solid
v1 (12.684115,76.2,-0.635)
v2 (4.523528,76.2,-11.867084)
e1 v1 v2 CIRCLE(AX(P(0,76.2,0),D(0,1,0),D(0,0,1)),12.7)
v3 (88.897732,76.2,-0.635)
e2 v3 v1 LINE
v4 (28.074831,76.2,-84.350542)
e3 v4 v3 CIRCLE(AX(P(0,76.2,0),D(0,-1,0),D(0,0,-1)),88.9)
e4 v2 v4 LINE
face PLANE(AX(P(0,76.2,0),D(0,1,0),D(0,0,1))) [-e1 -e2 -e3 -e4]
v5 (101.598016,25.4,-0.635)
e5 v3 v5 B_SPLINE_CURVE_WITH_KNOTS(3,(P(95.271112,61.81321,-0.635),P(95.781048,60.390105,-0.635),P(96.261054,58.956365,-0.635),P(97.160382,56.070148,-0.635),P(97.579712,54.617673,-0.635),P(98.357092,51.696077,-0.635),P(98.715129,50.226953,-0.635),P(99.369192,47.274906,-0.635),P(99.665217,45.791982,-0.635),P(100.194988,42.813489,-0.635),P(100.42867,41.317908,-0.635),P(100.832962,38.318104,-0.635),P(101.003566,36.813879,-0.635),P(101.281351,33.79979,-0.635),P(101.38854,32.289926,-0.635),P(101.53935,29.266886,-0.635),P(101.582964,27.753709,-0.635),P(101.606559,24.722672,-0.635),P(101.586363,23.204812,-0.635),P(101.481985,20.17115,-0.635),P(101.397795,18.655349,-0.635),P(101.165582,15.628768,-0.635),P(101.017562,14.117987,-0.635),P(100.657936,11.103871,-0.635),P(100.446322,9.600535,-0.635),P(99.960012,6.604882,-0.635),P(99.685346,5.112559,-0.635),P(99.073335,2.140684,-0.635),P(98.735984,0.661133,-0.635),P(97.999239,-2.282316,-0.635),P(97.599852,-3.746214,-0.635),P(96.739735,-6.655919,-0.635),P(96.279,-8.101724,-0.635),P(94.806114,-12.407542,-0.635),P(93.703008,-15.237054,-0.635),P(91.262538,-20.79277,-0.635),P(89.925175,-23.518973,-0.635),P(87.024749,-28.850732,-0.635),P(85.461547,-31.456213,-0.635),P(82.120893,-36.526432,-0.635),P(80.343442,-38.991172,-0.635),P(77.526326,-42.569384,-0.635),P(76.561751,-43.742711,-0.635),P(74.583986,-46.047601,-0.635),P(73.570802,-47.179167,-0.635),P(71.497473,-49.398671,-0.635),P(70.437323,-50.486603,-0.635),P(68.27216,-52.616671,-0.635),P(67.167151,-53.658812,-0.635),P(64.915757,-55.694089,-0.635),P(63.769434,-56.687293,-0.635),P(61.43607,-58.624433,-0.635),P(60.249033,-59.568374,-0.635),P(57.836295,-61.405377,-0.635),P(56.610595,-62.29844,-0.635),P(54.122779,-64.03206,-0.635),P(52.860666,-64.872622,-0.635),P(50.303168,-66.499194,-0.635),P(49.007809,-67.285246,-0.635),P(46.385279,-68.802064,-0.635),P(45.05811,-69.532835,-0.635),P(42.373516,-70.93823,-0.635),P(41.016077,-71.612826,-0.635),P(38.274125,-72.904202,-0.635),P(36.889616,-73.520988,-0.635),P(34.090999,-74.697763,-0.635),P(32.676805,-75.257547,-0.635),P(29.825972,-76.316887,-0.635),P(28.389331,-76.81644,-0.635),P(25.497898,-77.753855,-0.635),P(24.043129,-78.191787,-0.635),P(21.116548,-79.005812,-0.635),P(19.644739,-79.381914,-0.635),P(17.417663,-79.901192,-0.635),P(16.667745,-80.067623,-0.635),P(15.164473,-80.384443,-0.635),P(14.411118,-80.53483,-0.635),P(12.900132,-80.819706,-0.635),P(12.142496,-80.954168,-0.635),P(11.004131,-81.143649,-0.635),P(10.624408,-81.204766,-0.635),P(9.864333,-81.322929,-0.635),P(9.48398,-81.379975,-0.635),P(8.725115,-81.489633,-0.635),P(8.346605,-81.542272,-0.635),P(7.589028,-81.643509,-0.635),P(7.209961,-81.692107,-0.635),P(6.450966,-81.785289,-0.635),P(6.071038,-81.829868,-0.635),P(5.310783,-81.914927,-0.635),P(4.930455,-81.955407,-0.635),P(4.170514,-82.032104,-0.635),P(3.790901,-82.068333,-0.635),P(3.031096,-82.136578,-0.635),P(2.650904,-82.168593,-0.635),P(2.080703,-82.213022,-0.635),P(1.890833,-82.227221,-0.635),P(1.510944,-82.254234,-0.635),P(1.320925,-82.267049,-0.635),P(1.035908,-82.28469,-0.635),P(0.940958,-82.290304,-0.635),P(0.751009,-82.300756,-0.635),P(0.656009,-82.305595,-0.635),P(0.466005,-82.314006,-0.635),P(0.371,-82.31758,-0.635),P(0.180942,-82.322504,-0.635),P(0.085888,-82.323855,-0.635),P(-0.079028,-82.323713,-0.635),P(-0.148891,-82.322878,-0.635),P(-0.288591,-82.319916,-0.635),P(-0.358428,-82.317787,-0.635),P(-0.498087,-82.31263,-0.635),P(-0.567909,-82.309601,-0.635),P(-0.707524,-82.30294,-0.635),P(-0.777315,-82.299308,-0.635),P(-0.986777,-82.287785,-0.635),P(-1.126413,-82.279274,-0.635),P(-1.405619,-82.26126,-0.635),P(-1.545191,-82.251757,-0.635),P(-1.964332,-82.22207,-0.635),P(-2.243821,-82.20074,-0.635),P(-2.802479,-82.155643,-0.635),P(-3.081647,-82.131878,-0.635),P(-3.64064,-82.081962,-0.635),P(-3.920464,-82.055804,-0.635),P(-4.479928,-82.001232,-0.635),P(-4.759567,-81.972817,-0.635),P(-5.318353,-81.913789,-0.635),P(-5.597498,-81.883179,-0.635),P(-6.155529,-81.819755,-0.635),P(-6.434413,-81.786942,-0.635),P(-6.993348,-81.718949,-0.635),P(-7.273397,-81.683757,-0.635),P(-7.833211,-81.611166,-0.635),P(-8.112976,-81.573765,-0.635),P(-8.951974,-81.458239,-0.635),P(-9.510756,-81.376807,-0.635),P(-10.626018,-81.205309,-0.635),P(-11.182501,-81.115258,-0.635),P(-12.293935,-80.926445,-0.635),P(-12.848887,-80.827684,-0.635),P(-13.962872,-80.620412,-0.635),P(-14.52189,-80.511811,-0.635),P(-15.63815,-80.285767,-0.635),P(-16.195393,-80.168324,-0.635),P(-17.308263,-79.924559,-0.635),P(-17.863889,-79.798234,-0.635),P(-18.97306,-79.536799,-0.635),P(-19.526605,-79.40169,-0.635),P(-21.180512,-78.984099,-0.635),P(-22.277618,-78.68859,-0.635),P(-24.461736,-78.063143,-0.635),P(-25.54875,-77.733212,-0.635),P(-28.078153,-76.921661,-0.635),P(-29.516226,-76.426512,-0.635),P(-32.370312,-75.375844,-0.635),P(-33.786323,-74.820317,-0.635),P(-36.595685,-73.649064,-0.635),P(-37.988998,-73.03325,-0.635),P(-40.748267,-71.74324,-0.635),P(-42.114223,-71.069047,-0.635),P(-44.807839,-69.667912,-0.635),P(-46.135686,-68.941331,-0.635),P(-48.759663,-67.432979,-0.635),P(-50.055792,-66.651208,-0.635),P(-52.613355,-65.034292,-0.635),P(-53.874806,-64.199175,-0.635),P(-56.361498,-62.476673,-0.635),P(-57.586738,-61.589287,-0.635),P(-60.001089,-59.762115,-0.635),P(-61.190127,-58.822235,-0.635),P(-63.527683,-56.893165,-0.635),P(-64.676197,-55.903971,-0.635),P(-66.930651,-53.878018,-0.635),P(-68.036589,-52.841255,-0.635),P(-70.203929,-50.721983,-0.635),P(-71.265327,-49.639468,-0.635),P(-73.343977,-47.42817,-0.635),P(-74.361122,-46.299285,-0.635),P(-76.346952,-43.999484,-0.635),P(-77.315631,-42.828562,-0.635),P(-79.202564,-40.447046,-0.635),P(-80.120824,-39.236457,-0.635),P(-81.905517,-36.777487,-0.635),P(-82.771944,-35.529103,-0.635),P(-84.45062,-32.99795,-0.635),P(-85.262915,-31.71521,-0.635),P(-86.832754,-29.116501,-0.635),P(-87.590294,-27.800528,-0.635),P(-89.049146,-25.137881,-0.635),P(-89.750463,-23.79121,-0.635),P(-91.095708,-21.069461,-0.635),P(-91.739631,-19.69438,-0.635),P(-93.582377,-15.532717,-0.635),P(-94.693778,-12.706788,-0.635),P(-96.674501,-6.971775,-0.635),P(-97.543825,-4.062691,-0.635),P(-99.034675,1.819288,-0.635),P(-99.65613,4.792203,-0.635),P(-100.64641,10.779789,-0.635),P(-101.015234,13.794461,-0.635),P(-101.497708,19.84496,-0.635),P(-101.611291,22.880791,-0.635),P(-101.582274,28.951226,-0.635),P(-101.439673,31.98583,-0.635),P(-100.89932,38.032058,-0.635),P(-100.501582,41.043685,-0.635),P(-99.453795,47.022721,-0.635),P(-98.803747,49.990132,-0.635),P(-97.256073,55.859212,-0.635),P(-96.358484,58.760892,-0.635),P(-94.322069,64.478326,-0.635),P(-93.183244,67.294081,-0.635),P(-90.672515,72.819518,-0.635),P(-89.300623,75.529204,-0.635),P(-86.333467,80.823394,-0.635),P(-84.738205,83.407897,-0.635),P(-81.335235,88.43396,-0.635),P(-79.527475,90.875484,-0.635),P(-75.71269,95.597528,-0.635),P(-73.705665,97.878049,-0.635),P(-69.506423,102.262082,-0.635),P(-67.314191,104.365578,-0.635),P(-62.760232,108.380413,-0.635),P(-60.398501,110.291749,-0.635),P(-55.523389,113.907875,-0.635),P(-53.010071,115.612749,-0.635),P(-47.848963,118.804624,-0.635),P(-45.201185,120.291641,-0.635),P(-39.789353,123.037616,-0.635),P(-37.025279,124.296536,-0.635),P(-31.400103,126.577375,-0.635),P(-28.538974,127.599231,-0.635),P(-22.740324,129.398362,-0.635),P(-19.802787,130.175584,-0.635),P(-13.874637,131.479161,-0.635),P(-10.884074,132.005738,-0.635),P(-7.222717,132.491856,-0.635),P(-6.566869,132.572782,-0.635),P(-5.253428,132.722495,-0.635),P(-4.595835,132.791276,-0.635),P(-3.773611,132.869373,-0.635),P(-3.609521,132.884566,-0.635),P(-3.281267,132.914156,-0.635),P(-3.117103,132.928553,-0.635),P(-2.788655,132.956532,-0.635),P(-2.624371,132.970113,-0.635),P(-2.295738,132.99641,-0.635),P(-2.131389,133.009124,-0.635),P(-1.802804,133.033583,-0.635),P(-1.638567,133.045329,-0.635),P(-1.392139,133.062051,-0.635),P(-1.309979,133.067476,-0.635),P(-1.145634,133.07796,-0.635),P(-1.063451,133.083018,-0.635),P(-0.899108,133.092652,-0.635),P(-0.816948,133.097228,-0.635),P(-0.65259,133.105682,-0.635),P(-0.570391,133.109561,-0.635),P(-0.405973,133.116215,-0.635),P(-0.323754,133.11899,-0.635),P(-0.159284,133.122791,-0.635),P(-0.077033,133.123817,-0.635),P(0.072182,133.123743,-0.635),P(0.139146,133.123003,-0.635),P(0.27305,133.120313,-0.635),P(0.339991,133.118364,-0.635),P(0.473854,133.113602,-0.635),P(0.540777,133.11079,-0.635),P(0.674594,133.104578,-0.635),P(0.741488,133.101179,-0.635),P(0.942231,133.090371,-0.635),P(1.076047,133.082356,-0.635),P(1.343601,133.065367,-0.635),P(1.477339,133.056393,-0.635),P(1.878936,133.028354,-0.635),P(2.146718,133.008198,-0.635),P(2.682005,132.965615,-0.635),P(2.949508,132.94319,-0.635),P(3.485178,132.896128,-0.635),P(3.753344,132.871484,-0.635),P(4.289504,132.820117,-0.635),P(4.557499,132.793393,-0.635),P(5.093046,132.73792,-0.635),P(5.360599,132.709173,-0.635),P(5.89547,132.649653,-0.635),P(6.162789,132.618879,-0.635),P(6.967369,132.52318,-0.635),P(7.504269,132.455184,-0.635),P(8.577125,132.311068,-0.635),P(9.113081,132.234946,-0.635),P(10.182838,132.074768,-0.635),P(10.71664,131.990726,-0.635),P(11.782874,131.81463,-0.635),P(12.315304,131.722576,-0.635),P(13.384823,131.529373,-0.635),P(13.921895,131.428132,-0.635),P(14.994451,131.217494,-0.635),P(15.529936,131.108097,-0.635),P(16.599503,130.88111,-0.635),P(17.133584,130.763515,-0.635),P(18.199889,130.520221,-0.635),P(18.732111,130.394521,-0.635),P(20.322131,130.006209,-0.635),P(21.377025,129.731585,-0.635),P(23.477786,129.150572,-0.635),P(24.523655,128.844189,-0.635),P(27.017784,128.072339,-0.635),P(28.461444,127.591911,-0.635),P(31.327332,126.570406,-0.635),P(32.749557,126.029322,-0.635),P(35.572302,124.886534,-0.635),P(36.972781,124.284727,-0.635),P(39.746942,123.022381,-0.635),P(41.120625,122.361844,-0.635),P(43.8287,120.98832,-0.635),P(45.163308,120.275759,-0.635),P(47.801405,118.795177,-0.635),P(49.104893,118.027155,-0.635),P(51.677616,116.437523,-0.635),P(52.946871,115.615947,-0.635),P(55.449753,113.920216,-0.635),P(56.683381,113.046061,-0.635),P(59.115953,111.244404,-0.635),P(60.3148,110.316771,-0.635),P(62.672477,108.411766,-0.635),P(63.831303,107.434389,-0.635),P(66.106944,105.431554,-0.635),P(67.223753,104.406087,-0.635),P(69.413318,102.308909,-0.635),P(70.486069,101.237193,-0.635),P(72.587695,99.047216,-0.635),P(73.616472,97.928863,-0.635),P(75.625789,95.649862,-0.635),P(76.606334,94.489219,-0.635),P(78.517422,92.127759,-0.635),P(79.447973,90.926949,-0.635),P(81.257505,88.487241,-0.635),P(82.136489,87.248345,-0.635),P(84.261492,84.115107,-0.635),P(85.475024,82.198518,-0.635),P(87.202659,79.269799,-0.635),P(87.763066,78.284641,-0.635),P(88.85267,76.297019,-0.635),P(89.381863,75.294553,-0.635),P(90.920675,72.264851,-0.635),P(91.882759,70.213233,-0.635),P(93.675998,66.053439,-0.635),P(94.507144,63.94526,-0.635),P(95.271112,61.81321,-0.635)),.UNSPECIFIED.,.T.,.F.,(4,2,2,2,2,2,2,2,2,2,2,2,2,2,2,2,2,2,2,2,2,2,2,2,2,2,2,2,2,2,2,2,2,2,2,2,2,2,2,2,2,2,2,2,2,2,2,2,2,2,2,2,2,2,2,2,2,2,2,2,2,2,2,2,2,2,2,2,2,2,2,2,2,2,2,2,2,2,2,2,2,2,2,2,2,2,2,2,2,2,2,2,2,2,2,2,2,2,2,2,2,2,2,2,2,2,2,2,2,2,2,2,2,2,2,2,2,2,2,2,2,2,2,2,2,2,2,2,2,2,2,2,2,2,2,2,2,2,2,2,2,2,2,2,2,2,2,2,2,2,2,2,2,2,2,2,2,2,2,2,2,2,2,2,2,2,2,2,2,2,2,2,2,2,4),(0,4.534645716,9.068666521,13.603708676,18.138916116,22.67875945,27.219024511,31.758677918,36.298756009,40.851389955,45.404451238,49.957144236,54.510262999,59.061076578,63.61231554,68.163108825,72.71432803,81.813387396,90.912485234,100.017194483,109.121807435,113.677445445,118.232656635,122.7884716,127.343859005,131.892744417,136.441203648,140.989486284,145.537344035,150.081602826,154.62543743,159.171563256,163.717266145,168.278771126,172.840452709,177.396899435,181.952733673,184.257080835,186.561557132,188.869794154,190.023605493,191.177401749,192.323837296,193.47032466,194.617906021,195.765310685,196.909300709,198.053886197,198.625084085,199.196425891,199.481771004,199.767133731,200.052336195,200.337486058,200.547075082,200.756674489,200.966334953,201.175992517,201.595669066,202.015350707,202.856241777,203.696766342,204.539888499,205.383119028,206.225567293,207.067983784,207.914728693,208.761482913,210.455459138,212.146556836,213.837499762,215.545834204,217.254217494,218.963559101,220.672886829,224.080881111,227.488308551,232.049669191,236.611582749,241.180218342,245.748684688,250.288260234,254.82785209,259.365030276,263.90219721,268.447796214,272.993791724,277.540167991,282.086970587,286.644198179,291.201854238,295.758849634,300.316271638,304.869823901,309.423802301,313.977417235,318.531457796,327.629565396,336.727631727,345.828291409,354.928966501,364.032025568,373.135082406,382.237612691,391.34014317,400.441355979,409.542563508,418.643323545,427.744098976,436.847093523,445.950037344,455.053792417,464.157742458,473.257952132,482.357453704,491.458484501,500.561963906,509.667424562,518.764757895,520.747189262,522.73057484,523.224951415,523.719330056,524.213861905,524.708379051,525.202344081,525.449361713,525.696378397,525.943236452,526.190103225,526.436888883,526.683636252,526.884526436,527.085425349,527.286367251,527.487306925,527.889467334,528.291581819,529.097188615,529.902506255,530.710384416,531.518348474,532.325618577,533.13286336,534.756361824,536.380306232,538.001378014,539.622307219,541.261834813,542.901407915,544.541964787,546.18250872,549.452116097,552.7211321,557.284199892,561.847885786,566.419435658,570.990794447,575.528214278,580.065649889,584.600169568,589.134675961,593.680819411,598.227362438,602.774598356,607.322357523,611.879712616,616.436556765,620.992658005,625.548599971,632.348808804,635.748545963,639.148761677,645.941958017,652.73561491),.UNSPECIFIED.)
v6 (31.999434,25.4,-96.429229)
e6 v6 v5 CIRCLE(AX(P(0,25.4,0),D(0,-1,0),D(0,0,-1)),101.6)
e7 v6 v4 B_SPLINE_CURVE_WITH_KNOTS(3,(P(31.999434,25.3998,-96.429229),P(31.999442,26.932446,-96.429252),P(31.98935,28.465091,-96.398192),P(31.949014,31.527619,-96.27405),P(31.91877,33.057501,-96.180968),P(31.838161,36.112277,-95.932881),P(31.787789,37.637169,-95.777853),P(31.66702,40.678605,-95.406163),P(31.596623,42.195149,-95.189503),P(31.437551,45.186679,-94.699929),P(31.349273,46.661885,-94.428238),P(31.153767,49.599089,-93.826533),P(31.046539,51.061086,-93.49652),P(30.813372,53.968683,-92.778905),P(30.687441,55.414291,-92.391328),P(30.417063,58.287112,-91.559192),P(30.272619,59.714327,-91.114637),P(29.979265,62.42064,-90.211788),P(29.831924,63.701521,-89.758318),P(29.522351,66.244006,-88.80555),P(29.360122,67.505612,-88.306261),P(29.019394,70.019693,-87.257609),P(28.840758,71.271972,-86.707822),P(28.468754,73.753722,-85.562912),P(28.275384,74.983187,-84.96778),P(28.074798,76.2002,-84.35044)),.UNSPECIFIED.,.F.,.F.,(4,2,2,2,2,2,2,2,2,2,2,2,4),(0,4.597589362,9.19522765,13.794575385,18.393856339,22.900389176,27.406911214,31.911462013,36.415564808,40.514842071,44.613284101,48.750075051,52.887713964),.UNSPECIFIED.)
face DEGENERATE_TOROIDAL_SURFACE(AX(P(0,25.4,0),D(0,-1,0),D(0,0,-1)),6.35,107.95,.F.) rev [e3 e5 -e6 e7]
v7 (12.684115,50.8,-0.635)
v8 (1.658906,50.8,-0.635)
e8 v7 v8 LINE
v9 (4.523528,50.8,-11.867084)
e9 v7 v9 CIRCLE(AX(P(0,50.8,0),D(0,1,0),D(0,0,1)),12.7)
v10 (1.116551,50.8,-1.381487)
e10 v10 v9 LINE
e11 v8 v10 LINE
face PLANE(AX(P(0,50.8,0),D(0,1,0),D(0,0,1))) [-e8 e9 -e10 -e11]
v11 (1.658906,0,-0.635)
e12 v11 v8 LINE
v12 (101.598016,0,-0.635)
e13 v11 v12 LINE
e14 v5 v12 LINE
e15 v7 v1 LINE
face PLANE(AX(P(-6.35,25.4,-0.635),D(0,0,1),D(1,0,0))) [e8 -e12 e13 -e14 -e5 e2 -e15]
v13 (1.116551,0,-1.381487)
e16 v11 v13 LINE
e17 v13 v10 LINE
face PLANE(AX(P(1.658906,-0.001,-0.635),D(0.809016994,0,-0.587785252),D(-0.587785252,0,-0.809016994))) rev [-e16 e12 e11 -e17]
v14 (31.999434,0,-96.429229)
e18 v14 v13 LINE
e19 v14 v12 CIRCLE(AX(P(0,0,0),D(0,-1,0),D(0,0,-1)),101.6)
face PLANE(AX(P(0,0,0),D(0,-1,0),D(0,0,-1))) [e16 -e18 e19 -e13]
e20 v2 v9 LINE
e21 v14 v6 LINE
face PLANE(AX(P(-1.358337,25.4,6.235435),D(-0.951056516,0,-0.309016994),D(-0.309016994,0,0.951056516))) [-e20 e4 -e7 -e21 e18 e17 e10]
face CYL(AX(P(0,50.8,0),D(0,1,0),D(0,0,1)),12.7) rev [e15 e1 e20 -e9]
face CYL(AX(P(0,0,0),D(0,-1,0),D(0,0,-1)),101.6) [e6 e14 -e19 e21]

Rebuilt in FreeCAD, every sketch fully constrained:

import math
import FreeCAD as App
import Part
import Sketcher
Q = App.Units.Quantity


def add_polygon(sketch, points):
    """Adds a closed chain of lines whose ends are joined by coincident constraints."""
    first, n = sketch.GeometryCount, len(points)
    for a, b in zip(points, points[1:] + points[:1]):
        sketch.addGeometry(Part.LineSegment(App.Vector(*a, 0), App.Vector(*b, 0)), False)
    for i in range(n):
        sketch.addConstraint(Sketcher.Constraint("Coincident", first + i, 2, first + (i + 1) % n, 1))

doc = App.newDocument("Part")
params = doc.addObject("Spreadsheet::Sheet", "Params")
for row, (alias, value) in enumerate([
    ("sketch1_width", "4 in"),
    ("sketch1_height", "3 in"),
    ("sketch1_height2", "1 in"),
    ("sketch1_radius", "4.25 in"),
    ("revolution_angle", "72 deg"),
    ("sketch2_width", "4 in"),
    ("sketch2_height", "1 in"),
    ("sketch2_height2", "3 in"),
    ("sketch2_radius", "4.25 in"),
    ("pocket1_length", "0.025 in"),
    ("sketch3_height", "3 in"),
    ("sketch3_height2", "1 in"),
    ("sketch3_radius", "4.25 in"),
    ("pocket2_length", "0.025 in"),
    ("sketch4_diameter", "1 in"),
    ("pocket3_length", "1 in"),
], start=1):
    params.set(f"A{row}", alias)
    params.set(f"B{row}", "=" + value)
    params.setAlias(f"B{row}", alias)

body = doc.addObject("PartDesign::Body", "Body")

# Sketch on XY plane
sketch1 = body.newObject("Sketcher::SketchObject", "Sketch")
sketch1.AttachmentSupport = (doc.getObject("XY_Plane"), [""])
sketch1.MapMode = "FlatFace"
sketch1.addGeometry(Part.LineSegment(App.Vector(0, 76, 0), App.Vector(0, 0, 0)), False)
sketch1.addGeometry(Part.LineSegment(App.Vector(0, 0, 0), App.Vector(102, 0, 0)), False)
sketch1.addGeometry(Part.LineSegment(App.Vector(102, 0, 0), App.Vector(102, 25, 0)), False)
sketch1.addGeometry(Part.ArcOfCircle(Part.Circle(App.Vector(-6, 25, 0), App.Vector(0, 0, 1), 108), math.radians(0), math.radians(28)), False)
sketch1.addGeometry(Part.LineSegment(App.Vector(89, 76, 0), App.Vector(0, 76, 0)), False)
sketch1.addConstraint(Sketcher.Constraint("Coincident", 0, 2, 1, 1))
sketch1.addConstraint(Sketcher.Constraint("Coincident", 1, 2, 2, 1))
sketch1.addConstraint(Sketcher.Constraint("Tangent", 2, 2, 3, 1))
sketch1.addConstraint(Sketcher.Constraint("Coincident", 3, 2, 4, 1))
sketch1.addConstraint(Sketcher.Constraint("Coincident", 4, 2, 0, 1))
sketch1.addConstraint(Sketcher.Constraint("Vertical", 0))
sketch1.addConstraint(Sketcher.Constraint("Horizontal", 1))
sketch1.addConstraint(Sketcher.Constraint("Vertical", 2))
sketch1.addConstraint(Sketcher.Constraint("Horizontal", 4))
sketch1.addConstraint(Sketcher.Constraint("Coincident", 0, 2, -1, 1))
sketch1.addConstraint(Sketcher.Constraint("DistanceX", 1, 1, 1, 2, Q("4 in")))
sketch1.addConstraint(Sketcher.Constraint("DistanceY", 0, 2, 0, 1, Q("3 in")))
sketch1.addConstraint(Sketcher.Constraint("DistanceY", 2, 1, 2, 2, Q("1 in")))
sketch1.addConstraint(Sketcher.Constraint("Radius", 3, Q("4.25 in")))
sketch1.setExpression("Constraints[10]", "Params.sketch1_width")
sketch1.setExpression("Constraints[11]", "Params.sketch1_height")
sketch1.setExpression("Constraints[12]", "Params.sketch1_height2")
sketch1.setExpression("Constraints[13]", "Params.sketch1_radius")
revolution = body.newObject("PartDesign::Revolution", "Revolution")
revolution.Profile = sketch1
revolution.ReferenceAxis = (sketch1, ["V_Axis"])
revolution.setExpression("Angle", "Params.revolution_angle")

# Sketch on an angled plane
sketch2 = body.newObject("Sketcher::SketchObject", "Sketch001")
sketch2.Placement = App.Placement(App.Vector(0, 0, 0), App.Rotation(App.Vector(-0.309016994, 0, 0.951056516), App.Vector(0, 0.999999999, 0), App.Vector(-0.951056516, 0, -0.309016994), "ZXY"))
sketch2.addGeometry(Part.LineSegment(App.Vector(0, 76, 0), App.Vector(-89, 76, 0)), False)
sketch2.addGeometry(Part.ArcOfCircle(Part.Circle(App.Vector(6, 25, 0), App.Vector(0, 0, 1), 108), math.radians(152), math.radians(180)), False)
sketch2.addGeometry(Part.LineSegment(App.Vector(-102, 25, 0), App.Vector(-102, 0, 0)), False)
sketch2.addGeometry(Part.LineSegment(App.Vector(-102, 0, 0), App.Vector(0, 0, 0)), False)
sketch2.addGeometry(Part.LineSegment(App.Vector(0, 0, 0), App.Vector(0, 76, 0)), False)
sketch2.addConstraint(Sketcher.Constraint("Coincident", 0, 2, 1, 1))
sketch2.addConstraint(Sketcher.Constraint("Tangent", 1, 2, 2, 1))
sketch2.addConstraint(Sketcher.Constraint("Coincident", 2, 2, 3, 1))
sketch2.addConstraint(Sketcher.Constraint("Coincident", 3, 2, 4, 1))
sketch2.addConstraint(Sketcher.Constraint("Coincident", 4, 2, 0, 1))
sketch2.addConstraint(Sketcher.Constraint("Horizontal", 0))
sketch2.addConstraint(Sketcher.Constraint("Vertical", 2))
sketch2.addConstraint(Sketcher.Constraint("Horizontal", 3))
sketch2.addConstraint(Sketcher.Constraint("Vertical", 4))
sketch2.addConstraint(Sketcher.Constraint("Coincident", 3, 2, -1, 1))
sketch2.addConstraint(Sketcher.Constraint("DistanceX", 3, 1, 3, 2, Q("4 in")))
sketch2.addConstraint(Sketcher.Constraint("DistanceY", 2, 2, 2, 1, Q("1 in")))
sketch2.addConstraint(Sketcher.Constraint("DistanceY", 4, 1, 4, 2, Q("3 in")))
sketch2.addConstraint(Sketcher.Constraint("Radius", 1, Q("4.25 in")))
sketch2.setExpression("Constraints[10]", "Params.sketch2_width")
sketch2.setExpression("Constraints[11]", "Params.sketch2_height")
sketch2.setExpression("Constraints[12]", "Params.sketch2_height2")
sketch2.setExpression("Constraints[13]", "Params.sketch2_radius")
pocket1 = body.newObject("PartDesign::Pocket", "Pocket")
pocket1.Profile = sketch2
pocket1.setExpression("Length", "Params.pocket1_length")

# Sketch on XY plane
sketch3 = body.newObject("Sketcher::SketchObject", "Sketch002")
sketch3.AttachmentSupport = (doc.getObject("XY_Plane"), [""])
sketch3.MapMode = "FlatFace"
sketch3.addGeometry(Part.LineSegment(App.Vector(1, 76, 0), App.Vector(1, 0, 0)), False)
sketch3.addGeometry(Part.LineSegment(App.Vector(1, 0, 0), App.Vector(102, 0, 0)), False)
sketch3.addGeometry(Part.LineSegment(App.Vector(102, 0, 0), App.Vector(102, 25, 0)), False)
sketch3.addGeometry(Part.ArcOfCircle(Part.Circle(App.Vector(-6, 25, 0), App.Vector(0, 0, 1), 108), math.radians(0), math.radians(28)), False)
sketch3.addGeometry(Part.LineSegment(App.Vector(89, 76, 0), App.Vector(1, 76, 0)), False)
sketch3.addConstraint(Sketcher.Constraint("Coincident", 0, 2, 1, 1))
sketch3.addConstraint(Sketcher.Constraint("Coincident", 1, 2, 2, 1))
sketch3.addConstraint(Sketcher.Constraint("Tangent", 2, 2, 3, 1))
sketch3.addConstraint(Sketcher.Constraint("Coincident", 3, 2, 4, 1))
sketch3.addConstraint(Sketcher.Constraint("Coincident", 4, 2, 0, 1))
sketch3.addConstraint(Sketcher.Constraint("Vertical", 0))
sketch3.addConstraint(Sketcher.Constraint("Horizontal", 1))
sketch3.addConstraint(Sketcher.Constraint("Vertical", 2))
sketch3.addConstraint(Sketcher.Constraint("Horizontal", 4))
sketch3.addConstraint(Sketcher.Constraint("PointOnObject", 0, 2, -1))
sketch3.addConstraint(Sketcher.Constraint("DistanceY", 0, 2, 0, 1, Q("3 in")))
sketch3.addConstraint(Sketcher.Constraint("DistanceY", 2, 1, 2, 2, Q("1 in")))
sketch3.addConstraint(Sketcher.Constraint("Radius", 3, Q("4.25 in")))
sketch3.addConstraint(Sketcher.Constraint("DistanceX", -1, 1, 1, 2, Q("4 in")))
sketch3.addConstraint(Sketcher.Constraint("DistanceX", 1, 1, 1, 2, Q("100.932321 mm")))
sketch3.setExpression("Constraints[10]", "Params.sketch3_height")
sketch3.setExpression("Constraints[11]", "Params.sketch3_height2")
sketch3.setExpression("Constraints[12]", "Params.sketch3_radius")
pocket2 = body.newObject("PartDesign::Pocket", "Pocket001")
pocket2.Profile = sketch3
pocket2.setExpression("Length", "Params.pocket2_length")

# Sketch on XZ plane
sketch4 = body.newObject("Sketcher::SketchObject", "Sketch003")
sketch4.AttachmentSupport = (doc.getObject("XZ_Plane"), [""])
sketch4.MapMode = "FlatFace"
sketch4.AttachmentOffset = App.Placement(App.Vector(0, 0, -3 * 25.4), App.Rotation())
sketch4.addGeometry(Part.Circle(App.Vector(0, 0, 0), App.Vector(0, 0, 1), 13), False)
sketch4.addConstraint(Sketcher.Constraint("Coincident", 0, 3, -1, 1))
sketch4.addConstraint(Sketcher.Constraint("Diameter", 0, Q("1 in")))
sketch4.setExpression("Constraints[1]", "Params.sketch4_diameter")
pocket3 = body.newObject("PartDesign::Pocket", "Pocket002")
pocket3.Profile = sketch4
pocket3.setExpression("Length", "Params.pocket3_length")
pocket3.Reversed = True

# Sketch on XZ plane
sketch5 = body.newObject("Sketcher::SketchObject", "Sketch004")
sketch5.AttachmentSupport = (doc.getObject("XZ_Plane"), [""])
sketch5.MapMode = "FlatFace"
sketch5.AttachmentOffset = App.Placement(App.Vector(0, 0, -2 * 25.4), App.Rotation())
add_polygon(sketch5, [(1.7, -0.6), (1.1, -1.4), (0.9, -0.6)])  # lines 0-2
sketch5.addConstraint(Sketcher.Constraint("Horizontal", 2))
sketch5.addConstraint(Sketcher.Constraint("Angle", 0, Q("-126 deg")))
sketch5.addConstraint(Sketcher.Constraint("Angle", 1, Q("108 deg")))
sketch5.addConstraint(Sketcher.Constraint("DistanceY", 1, 2, -1, 1, Q("0.025 in")))
sketch5.addConstraint(Sketcher.Constraint("Distance", 0, Q("0.922709 mm")))
sketch5.addConstraint(Sketcher.Constraint("DistanceX", -1, 1, 0, 2, Q("1.116551 mm")))
pocket4 = body.newObject("PartDesign::Pocket", "Pocket003")
pocket4.Profile = sketch5
pocket4.Type = "UpToFirst"
pocket4.Reversed = True

doc.recompute()
